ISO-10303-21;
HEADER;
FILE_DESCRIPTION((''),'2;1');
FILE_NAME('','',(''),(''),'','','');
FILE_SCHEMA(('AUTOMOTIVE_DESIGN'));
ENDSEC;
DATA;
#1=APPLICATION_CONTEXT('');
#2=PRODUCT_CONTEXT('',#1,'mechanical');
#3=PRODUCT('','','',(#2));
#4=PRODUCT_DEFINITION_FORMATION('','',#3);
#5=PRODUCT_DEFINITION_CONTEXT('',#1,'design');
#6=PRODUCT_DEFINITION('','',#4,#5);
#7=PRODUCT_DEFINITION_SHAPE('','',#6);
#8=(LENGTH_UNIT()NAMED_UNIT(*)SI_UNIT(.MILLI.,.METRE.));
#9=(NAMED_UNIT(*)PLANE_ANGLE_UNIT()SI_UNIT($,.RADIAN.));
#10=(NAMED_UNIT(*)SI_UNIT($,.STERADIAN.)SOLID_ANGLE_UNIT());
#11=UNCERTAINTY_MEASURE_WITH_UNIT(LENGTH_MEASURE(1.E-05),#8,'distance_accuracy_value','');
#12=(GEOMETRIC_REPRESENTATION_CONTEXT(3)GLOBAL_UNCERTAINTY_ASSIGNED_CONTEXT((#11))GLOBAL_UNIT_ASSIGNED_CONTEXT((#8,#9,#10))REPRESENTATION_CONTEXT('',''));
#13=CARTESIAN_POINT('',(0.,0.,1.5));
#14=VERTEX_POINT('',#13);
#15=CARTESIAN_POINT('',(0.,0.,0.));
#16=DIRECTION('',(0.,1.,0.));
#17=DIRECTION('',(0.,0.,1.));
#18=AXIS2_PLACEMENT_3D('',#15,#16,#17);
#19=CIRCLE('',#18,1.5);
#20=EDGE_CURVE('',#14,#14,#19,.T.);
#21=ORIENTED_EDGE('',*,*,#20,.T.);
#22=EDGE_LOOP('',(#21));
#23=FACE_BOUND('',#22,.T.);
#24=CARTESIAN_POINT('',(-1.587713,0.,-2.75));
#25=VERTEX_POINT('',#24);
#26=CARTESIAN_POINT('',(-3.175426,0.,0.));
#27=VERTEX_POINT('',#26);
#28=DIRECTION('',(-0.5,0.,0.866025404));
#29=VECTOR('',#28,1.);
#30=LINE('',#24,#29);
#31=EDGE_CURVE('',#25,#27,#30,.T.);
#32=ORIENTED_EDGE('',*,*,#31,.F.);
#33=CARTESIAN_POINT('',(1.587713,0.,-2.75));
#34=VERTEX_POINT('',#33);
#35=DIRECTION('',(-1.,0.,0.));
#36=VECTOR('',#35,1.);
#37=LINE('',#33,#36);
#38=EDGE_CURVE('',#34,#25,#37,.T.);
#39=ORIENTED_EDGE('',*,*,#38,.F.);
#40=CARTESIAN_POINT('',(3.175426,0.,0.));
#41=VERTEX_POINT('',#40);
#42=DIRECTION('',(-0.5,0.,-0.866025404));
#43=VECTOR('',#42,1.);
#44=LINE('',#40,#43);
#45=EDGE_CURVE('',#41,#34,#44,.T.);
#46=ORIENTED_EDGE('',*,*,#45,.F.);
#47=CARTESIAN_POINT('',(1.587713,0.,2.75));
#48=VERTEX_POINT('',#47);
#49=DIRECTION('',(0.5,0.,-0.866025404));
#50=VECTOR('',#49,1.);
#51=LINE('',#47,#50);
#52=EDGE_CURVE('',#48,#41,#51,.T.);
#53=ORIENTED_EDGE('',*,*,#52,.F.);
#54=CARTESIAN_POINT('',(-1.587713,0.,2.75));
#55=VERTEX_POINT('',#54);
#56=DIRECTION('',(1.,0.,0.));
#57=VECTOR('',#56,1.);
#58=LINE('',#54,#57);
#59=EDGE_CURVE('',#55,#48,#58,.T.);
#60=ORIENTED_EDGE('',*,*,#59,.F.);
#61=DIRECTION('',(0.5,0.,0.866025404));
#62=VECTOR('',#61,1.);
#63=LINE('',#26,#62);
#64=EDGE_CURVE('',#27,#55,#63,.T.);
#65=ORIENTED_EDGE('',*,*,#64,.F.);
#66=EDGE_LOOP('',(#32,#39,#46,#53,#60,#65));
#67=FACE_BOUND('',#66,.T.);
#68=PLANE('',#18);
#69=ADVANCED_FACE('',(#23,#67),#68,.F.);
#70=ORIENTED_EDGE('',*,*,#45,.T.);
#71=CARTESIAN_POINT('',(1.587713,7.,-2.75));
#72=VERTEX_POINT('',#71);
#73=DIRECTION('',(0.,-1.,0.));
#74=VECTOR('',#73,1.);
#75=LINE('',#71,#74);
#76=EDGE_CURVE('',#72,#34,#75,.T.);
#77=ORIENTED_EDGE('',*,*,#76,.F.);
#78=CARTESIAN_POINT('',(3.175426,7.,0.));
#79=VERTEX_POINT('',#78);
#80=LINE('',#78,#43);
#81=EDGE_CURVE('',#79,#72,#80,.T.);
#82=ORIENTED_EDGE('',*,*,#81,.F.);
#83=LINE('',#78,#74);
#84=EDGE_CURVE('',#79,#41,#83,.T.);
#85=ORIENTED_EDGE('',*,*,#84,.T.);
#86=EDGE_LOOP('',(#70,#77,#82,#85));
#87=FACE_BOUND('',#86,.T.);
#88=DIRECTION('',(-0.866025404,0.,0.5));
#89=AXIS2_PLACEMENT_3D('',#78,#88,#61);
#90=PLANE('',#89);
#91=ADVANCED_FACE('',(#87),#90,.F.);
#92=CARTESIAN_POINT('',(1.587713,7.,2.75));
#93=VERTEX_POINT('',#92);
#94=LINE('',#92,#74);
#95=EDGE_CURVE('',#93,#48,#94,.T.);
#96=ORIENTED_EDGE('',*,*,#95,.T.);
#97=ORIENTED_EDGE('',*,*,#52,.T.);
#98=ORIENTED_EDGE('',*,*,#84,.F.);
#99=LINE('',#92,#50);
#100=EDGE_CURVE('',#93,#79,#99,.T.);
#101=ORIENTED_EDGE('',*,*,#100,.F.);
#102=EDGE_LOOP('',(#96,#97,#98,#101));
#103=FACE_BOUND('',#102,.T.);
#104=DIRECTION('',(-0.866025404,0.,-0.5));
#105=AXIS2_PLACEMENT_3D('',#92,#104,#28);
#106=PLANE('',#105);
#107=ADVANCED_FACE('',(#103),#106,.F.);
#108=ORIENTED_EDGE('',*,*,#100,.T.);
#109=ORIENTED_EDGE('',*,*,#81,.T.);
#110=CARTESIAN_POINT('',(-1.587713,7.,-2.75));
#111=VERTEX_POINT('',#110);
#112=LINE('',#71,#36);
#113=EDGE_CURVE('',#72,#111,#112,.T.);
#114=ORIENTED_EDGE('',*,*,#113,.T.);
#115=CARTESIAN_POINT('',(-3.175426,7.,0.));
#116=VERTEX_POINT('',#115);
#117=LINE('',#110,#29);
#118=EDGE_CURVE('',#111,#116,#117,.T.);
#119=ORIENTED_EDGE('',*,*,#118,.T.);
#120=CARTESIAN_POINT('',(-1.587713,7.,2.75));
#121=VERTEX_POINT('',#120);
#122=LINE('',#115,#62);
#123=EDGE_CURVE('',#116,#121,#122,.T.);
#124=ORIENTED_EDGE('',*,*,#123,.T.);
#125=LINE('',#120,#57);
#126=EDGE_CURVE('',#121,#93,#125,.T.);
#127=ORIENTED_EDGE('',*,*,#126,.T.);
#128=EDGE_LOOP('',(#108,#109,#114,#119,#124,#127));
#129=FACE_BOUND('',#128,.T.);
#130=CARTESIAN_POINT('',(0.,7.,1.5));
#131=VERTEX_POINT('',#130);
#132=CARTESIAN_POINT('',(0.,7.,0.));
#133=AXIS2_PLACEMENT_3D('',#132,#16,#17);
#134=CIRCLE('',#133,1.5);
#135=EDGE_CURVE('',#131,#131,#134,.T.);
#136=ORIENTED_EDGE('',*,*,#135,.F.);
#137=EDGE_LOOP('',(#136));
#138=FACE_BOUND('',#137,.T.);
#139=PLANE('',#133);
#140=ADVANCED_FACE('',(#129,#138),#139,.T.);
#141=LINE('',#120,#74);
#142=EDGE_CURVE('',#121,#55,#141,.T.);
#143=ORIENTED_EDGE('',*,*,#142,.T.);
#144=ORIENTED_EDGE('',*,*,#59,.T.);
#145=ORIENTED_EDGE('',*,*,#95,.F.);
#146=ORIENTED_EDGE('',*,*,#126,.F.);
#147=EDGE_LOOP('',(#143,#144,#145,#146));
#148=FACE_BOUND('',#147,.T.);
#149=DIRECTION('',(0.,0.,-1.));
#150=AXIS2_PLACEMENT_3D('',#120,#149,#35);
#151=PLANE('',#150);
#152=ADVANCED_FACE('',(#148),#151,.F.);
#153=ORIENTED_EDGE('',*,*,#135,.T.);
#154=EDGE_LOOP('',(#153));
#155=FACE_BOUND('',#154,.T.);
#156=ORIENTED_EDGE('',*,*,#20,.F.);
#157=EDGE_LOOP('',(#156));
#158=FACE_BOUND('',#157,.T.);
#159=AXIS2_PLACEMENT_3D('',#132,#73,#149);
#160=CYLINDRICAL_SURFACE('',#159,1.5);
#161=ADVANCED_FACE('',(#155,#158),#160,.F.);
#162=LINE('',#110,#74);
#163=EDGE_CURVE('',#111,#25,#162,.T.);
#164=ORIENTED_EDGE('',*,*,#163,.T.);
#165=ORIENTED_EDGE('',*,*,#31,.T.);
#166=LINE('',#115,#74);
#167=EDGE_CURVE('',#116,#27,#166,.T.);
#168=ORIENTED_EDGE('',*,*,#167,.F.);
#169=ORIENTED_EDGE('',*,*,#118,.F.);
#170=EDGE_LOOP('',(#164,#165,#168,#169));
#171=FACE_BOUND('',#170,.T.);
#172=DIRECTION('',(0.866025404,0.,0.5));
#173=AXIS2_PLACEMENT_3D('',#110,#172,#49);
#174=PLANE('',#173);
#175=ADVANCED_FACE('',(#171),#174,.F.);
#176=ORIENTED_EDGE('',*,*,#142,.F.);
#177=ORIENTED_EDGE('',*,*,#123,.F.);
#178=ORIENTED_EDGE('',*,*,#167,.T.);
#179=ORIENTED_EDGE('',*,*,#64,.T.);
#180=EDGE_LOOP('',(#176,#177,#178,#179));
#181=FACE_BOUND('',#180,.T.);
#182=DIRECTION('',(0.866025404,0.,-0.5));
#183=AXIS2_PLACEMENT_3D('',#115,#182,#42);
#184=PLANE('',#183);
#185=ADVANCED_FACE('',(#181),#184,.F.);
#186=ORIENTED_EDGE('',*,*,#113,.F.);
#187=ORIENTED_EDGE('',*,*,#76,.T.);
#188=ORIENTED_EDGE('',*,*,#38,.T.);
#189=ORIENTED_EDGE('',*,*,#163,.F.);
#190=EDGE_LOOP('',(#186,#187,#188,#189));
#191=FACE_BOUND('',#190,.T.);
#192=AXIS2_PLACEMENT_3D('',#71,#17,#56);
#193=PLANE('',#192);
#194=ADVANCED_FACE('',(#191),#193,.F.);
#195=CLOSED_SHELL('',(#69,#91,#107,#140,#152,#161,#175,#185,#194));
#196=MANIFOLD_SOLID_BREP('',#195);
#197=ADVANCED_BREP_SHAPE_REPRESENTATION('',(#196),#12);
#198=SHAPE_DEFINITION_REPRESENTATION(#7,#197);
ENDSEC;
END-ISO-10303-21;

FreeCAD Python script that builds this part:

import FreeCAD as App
import Part
import Sketcher
Q = App.Units.Quantity

doc = App.newDocument("Part")
body = doc.addObject("PartDesign::Body", "Body")

sketch1 = doc.addObject("Sketcher::SketchObject", "Sketch")
body.addObject(sketch1)
sketch1.AttachmentSupport = (doc.XZ_Plane, [""])
sketch1.MapMode = "FlatFace"
sketch1.addGeometry(Part.LineSegment(App.Vector(3.2, 0, 0), App.Vector(1.6, -2.8, 0)), False)
sketch1.addGeometry(Part.LineSegment(App.Vector(1.6, -2.8, 0), App.Vector(-1.6, -2.8, 0)), False)
sketch1.addGeometry(Part.LineSegment(App.Vector(-1.6, -2.8, 0), App.Vector(-3.2, 0, 0)), False)
sketch1.addGeometry(Part.LineSegment(App.Vector(-3.2, 0, 0), App.Vector(-1.6, 2.8, 0)), False)
sketch1.addGeometry(Part.LineSegment(App.Vector(-1.6, 2.8, 0), App.Vector(1.6, 2.8, 0)), False)
sketch1.addGeometry(Part.LineSegment(App.Vector(1.6, 2.8, 0), App.Vector(3.2, 0, 0)), False)
sketch1.addGeometry(Part.Circle(App.Vector(0, 0, 0), App.Vector(0, 0, 1), 1.5), False)
sketch1.addConstraint(Sketcher.Constraint("Coincident", 0, 2, 1, 1))
sketch1.addConstraint(Sketcher.Constraint("Coincident", 1, 2, 2, 1))
sketch1.addConstraint(Sketcher.Constraint("Coincident", 2, 2, 3, 1))
sketch1.addConstraint(Sketcher.Constraint("Coincident", 3, 2, 4, 1))
sketch1.addConstraint(Sketcher.Constraint("Coincident", 4, 2, 5, 1))
sketch1.addConstraint(Sketcher.Constraint("Coincident", 5, 2, 0, 1))
sketch1.addConstraint(Sketcher.Constraint("Horizontal", 1))
sketch1.addConstraint(Sketcher.Constraint("Horizontal", 4))
sketch1.addConstraint(Sketcher.Constraint("Coincident", 6, 3, -1, 1))
sketch1.addConstraint(Sketcher.Constraint("Symmetric", 0, 2, 3, 2, -1, 1))
sketch1.addConstraint(Sketcher.Constraint("Symmetric", 2, 2, 5, 2, -1, 1))
sketch1.addConstraint(Sketcher.Constraint("PointOnObject", 2, 2, -1))
sketch1.addConstraint(Sketcher.Constraint("Parallel", 2, 5))
sketch1.addConstraint(Sketcher.Constraint("Vertical", 1, 2, 3, 2))
sketch1.addConstraint(Sketcher.Constraint("Diameter", 6, 3.0))
sketch1.addConstraint(Sketcher.Constraint("Angle", 0, Q("-120 deg")))
sketch1.addConstraint(Sketcher.Constraint("DistanceY", 1, 2, 3, 2, 5.5))
sketch1.addConstraint(Sketcher.Constraint("DistanceX", 1, 2, 1, 1, 3.175426))
pad1 = doc.addObject("PartDesign::Pad", "Pad")
body.addObject(pad1)
pad1.Profile = sketch1
pad1.Length = 7
pad1.Reversed = True

doc.recompute()
